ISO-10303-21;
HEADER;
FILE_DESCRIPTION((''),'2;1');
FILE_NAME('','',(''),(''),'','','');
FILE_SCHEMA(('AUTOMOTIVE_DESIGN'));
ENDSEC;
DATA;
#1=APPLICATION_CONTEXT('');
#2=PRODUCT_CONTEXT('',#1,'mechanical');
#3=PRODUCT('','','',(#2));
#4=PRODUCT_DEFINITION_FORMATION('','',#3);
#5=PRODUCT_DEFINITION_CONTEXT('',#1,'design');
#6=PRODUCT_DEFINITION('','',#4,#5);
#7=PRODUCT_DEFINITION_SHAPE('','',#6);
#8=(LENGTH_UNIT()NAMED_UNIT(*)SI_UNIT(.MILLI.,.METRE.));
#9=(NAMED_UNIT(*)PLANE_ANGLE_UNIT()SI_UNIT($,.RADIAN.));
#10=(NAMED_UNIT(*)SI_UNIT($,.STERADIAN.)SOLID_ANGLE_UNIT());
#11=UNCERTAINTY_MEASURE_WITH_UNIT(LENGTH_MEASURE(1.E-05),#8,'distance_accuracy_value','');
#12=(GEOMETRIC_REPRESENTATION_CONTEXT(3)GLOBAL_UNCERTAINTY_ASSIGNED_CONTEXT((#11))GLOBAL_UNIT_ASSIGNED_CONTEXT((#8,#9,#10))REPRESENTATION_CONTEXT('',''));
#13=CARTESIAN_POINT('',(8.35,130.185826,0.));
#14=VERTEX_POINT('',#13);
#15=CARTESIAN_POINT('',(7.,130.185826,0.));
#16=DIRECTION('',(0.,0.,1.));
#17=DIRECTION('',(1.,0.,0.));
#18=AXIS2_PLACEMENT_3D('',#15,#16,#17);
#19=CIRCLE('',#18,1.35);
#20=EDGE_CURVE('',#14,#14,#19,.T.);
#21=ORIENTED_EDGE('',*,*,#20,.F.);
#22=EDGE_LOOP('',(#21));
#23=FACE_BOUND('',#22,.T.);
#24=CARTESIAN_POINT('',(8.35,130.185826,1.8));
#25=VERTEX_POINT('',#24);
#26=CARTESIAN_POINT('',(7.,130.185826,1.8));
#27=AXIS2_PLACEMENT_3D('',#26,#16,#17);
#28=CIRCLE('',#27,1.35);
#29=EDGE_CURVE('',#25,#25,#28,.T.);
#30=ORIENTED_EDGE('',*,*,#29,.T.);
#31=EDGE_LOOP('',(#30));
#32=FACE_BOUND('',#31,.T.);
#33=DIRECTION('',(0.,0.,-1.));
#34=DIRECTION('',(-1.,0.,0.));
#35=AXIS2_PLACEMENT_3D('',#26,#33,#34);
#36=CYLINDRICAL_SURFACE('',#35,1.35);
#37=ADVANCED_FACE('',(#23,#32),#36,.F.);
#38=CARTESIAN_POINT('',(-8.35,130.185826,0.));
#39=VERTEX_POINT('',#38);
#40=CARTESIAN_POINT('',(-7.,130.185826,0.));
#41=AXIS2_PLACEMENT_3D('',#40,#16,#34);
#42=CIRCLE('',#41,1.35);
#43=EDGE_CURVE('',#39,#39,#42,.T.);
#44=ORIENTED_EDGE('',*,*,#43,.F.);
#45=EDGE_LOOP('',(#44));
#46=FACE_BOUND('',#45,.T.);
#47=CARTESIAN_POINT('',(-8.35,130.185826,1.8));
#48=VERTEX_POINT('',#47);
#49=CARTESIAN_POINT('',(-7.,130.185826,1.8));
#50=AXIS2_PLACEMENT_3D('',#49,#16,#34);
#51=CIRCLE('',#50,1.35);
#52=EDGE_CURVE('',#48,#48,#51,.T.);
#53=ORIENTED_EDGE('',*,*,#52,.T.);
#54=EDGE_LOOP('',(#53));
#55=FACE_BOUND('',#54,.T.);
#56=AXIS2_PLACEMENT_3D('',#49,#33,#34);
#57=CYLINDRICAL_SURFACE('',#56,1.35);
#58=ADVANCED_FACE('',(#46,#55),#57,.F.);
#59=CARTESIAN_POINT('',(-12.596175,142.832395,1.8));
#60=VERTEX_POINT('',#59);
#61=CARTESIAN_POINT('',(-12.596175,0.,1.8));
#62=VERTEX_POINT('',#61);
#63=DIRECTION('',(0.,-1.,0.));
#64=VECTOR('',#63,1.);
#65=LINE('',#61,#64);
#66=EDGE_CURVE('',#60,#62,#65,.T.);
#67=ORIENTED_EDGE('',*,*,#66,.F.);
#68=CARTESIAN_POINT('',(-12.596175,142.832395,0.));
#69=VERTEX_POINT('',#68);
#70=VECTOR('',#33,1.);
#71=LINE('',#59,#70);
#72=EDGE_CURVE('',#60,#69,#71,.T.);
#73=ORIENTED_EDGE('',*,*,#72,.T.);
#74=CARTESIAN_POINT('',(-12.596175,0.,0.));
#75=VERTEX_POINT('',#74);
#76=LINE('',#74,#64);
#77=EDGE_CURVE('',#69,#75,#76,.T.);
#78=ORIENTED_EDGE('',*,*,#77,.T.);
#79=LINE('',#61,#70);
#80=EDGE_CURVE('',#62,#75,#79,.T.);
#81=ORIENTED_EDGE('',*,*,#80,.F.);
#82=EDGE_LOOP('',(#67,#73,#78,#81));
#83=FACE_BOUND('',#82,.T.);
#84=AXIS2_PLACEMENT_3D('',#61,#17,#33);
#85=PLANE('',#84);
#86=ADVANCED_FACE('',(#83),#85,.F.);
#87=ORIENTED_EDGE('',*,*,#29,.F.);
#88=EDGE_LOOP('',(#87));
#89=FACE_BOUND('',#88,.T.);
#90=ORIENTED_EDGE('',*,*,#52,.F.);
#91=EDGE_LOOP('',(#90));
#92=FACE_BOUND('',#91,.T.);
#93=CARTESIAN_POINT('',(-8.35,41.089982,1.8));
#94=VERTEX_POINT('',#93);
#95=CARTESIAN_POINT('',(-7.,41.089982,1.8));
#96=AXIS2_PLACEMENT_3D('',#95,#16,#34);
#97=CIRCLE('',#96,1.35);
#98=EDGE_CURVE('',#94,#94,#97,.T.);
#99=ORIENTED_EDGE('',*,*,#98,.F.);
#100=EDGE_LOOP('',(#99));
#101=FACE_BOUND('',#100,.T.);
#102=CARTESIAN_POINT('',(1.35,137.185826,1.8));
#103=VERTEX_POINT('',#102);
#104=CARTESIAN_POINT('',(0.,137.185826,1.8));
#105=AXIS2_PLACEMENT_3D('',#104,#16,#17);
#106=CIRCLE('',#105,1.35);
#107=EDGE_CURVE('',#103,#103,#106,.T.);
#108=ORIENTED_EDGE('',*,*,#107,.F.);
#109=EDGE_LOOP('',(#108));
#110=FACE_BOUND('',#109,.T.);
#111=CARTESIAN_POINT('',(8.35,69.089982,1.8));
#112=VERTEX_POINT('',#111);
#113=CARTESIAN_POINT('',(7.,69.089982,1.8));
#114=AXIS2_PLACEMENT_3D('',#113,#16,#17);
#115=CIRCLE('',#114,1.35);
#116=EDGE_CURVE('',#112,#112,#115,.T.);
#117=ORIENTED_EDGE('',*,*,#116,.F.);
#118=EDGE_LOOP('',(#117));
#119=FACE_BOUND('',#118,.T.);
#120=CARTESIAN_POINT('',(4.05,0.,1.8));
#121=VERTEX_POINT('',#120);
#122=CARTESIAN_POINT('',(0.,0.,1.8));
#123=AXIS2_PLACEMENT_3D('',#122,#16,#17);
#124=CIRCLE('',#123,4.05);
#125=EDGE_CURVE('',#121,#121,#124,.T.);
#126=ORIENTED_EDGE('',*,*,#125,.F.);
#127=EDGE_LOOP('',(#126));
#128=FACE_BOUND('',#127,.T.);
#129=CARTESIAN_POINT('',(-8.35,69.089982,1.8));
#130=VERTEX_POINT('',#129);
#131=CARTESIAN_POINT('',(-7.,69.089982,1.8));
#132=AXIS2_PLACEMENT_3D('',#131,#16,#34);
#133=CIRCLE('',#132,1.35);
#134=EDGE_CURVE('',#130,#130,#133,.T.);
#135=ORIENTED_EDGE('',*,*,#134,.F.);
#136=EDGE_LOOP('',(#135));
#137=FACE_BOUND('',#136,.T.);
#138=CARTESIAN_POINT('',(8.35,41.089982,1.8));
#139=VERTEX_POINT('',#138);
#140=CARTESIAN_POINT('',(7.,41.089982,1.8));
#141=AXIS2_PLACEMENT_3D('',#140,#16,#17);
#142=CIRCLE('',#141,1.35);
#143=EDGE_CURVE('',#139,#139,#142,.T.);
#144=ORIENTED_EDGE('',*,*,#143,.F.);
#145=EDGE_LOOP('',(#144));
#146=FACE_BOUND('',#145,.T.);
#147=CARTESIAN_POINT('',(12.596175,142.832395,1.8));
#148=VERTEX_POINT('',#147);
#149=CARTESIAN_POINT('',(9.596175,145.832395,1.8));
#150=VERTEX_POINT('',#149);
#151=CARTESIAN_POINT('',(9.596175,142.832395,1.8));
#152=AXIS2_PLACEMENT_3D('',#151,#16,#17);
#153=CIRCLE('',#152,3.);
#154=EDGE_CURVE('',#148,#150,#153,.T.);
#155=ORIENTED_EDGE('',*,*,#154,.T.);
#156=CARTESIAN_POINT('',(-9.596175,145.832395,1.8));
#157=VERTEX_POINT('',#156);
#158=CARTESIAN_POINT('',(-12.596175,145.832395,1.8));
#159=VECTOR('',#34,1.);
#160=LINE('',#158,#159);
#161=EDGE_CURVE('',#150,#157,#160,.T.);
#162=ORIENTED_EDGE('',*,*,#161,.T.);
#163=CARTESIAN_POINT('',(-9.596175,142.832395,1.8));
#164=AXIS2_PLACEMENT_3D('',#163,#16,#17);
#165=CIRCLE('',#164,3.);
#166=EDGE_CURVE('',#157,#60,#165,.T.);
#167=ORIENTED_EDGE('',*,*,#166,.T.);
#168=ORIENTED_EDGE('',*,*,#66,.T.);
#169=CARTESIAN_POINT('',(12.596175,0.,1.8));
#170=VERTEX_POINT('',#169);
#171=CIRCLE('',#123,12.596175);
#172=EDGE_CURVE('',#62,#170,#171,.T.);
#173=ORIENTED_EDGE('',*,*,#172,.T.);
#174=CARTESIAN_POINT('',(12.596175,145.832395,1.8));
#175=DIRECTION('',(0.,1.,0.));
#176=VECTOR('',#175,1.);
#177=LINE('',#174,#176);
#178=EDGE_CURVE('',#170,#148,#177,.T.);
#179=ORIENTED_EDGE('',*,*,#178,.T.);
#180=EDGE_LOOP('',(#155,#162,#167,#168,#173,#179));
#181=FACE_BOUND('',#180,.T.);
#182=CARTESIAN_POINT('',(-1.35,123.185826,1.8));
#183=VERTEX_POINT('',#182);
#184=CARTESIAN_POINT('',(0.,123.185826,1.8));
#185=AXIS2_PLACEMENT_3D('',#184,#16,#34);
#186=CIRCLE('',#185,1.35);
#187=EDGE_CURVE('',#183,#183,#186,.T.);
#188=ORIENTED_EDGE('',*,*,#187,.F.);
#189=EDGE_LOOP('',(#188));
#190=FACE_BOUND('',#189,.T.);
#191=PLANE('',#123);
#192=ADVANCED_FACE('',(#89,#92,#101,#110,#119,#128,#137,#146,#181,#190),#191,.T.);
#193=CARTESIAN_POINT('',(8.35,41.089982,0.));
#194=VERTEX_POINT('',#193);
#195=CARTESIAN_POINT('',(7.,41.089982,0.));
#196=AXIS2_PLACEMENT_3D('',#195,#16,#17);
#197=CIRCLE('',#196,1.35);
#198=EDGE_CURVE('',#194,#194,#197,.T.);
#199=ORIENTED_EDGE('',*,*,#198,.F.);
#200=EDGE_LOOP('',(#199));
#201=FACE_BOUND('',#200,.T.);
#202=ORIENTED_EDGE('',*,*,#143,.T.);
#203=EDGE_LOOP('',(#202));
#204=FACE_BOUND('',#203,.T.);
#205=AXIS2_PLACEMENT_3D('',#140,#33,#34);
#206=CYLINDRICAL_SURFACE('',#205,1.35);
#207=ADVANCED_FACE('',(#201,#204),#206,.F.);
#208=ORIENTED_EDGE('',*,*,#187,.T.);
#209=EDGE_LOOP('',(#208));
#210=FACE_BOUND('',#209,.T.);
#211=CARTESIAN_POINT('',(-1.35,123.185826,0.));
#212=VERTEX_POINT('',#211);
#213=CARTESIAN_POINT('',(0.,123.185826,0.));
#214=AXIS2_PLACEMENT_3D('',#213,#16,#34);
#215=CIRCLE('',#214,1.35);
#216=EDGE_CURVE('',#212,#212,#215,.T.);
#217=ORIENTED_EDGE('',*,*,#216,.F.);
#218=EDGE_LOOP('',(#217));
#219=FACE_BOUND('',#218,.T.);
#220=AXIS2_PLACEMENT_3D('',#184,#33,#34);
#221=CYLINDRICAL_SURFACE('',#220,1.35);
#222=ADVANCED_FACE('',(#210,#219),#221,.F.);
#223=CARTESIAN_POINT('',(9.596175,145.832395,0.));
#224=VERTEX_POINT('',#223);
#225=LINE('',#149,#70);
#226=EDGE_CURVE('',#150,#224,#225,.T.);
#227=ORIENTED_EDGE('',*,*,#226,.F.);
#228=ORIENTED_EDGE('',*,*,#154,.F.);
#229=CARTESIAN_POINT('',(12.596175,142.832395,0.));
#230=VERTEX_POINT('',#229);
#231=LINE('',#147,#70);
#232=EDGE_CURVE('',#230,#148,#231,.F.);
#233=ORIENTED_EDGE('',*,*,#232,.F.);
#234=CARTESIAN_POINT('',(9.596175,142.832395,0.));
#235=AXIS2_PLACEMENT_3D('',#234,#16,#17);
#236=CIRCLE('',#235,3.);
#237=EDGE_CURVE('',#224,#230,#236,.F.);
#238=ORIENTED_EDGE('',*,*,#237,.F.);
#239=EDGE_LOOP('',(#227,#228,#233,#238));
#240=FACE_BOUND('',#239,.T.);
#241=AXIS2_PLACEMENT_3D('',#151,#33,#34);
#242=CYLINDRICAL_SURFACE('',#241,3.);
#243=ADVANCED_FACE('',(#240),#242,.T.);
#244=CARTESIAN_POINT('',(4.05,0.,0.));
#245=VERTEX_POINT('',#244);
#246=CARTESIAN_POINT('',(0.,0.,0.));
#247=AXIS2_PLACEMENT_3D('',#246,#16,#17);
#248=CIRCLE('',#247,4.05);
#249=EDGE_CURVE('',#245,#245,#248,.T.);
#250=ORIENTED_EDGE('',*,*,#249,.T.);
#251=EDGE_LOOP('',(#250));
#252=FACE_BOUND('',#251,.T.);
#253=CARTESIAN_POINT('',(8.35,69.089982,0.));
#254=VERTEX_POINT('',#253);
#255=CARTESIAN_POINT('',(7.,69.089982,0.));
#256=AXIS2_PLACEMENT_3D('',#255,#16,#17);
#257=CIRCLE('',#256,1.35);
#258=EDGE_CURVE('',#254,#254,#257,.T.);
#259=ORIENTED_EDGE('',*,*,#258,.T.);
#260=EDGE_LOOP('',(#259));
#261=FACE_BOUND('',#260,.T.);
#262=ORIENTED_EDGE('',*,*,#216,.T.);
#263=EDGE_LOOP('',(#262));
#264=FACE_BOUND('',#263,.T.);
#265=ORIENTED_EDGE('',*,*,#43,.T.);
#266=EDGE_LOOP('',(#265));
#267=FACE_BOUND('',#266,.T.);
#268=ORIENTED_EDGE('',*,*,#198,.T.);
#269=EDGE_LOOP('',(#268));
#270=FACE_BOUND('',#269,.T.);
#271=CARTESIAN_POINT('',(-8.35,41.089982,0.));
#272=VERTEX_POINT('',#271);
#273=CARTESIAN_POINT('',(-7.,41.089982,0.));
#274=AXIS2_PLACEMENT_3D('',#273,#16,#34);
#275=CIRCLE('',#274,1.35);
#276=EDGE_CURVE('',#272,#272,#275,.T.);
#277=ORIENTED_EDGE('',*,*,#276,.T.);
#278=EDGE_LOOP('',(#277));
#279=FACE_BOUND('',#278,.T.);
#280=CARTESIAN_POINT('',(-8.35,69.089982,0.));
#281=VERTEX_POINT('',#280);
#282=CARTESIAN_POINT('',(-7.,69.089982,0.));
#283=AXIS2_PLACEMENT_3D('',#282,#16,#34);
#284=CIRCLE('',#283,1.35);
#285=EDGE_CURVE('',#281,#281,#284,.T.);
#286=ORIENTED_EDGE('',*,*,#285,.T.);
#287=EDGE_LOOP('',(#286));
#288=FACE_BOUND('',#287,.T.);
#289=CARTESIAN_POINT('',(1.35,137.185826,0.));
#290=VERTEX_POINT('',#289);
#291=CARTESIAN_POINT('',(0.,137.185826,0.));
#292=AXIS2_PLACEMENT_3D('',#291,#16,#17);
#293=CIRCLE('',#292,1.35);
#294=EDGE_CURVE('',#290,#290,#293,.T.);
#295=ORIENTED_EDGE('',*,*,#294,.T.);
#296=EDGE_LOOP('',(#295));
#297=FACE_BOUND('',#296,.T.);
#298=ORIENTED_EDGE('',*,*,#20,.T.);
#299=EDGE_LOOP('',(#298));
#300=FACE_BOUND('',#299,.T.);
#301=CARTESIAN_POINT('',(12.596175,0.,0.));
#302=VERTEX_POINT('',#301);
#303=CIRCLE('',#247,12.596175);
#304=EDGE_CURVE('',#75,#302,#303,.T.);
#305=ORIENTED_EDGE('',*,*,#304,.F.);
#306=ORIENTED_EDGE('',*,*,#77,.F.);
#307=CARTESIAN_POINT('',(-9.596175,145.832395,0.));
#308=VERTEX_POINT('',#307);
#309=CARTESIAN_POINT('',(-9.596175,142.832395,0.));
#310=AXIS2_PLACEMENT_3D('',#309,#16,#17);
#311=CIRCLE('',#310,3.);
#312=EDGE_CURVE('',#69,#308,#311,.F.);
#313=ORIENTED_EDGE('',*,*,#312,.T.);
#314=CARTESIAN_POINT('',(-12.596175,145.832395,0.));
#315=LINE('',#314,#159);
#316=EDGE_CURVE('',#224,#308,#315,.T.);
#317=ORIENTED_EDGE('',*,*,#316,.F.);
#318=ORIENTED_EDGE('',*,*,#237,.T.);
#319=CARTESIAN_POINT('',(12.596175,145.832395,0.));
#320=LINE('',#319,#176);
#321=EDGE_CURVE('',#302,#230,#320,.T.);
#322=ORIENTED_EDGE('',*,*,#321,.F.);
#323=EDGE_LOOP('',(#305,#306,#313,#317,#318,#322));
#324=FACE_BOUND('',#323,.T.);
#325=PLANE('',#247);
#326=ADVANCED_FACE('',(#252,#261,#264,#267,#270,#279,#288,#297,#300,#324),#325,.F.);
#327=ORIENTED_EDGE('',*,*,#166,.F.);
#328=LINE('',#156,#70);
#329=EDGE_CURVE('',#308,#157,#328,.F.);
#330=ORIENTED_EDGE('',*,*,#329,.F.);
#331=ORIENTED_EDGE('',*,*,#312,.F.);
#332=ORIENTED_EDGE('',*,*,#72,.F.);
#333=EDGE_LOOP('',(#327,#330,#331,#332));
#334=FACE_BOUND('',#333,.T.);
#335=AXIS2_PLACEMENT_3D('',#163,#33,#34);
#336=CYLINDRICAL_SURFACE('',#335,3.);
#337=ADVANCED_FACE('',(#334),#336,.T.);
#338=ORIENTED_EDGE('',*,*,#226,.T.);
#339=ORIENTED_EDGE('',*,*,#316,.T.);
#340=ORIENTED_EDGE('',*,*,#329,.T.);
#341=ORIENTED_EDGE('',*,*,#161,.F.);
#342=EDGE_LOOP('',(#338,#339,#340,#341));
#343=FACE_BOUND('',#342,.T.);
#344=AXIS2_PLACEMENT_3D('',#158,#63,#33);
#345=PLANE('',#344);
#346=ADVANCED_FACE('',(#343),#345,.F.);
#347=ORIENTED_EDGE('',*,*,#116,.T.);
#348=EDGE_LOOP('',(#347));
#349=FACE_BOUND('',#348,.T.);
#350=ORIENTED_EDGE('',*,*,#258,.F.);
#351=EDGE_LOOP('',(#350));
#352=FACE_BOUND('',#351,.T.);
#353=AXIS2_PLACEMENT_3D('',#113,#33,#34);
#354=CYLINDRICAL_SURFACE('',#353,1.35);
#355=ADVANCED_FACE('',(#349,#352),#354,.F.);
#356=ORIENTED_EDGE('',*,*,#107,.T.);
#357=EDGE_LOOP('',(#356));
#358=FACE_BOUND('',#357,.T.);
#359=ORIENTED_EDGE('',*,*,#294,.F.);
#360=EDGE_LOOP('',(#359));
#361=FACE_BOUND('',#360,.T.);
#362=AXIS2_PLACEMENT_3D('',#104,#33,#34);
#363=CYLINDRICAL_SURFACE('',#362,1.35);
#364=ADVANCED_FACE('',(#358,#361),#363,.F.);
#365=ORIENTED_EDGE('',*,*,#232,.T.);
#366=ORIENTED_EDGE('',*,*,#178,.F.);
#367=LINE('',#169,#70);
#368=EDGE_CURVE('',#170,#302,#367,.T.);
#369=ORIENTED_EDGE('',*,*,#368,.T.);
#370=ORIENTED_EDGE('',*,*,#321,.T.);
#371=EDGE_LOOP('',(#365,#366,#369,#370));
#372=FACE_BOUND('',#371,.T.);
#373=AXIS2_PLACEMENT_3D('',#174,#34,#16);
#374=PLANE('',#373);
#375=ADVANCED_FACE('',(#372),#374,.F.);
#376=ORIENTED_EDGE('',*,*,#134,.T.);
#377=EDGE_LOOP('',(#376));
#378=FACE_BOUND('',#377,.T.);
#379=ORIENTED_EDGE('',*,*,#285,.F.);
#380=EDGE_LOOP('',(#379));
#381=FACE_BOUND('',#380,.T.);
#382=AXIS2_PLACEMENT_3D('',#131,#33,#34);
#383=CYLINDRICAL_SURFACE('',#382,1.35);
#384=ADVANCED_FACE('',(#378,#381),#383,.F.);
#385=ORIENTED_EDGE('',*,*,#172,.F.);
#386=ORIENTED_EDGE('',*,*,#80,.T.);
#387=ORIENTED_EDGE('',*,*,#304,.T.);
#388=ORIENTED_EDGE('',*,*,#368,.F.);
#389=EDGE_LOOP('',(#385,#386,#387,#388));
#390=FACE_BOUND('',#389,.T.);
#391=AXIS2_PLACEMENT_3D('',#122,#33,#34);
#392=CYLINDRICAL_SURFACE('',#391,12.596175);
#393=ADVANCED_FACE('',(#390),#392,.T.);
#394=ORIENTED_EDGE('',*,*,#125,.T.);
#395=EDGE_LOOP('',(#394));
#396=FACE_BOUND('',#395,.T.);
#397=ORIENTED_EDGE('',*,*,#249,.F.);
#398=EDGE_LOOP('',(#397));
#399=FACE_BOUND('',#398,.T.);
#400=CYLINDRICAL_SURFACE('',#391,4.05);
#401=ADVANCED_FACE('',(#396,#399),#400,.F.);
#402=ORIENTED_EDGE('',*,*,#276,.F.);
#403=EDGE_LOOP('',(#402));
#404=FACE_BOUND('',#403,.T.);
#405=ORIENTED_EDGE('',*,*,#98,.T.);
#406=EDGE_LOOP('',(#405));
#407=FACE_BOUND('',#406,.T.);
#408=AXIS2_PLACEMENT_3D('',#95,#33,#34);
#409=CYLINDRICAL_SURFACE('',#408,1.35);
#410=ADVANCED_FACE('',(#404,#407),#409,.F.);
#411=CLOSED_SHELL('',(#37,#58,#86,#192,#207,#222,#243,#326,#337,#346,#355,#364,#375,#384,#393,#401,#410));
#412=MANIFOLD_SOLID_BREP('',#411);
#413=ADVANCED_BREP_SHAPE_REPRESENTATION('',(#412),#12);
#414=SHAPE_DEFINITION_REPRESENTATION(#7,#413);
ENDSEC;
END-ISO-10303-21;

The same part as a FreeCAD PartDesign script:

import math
import FreeCAD as App
import Part
import Sketcher

V = App.Vector


def edges_at(feature, points):
    """Names of the edges that pass closest to the given points."""
    edges = feature.Shape.Edges
    near = lambda p: min(range(len(edges)), key=lambda i: edges[i].distToShape(Part.Vertex(*p))[0])
    return sorted({f"Edge{near(p) + 1}" for p in points})

doc = App.newDocument("Part")
body = doc.addObject("PartDesign::Body", "Body")

sketch1 = body.newObject("Sketcher::SketchObject", "Sketch")
sketch1.AttachmentSupport = (doc.getObject("XY_Plane"), [""])
sketch1.MapMode = "FlatFace"
sketch1.addGeometry(Part.LineSegment(V(-12.596175, 145.832395, 0), V(-12.596175, 0, 0)), False)
sketch1.addGeometry(Part.ArcOfCircle(Part.Circle(V(0, 0, 0), V(0, 0, 1), 12.596175), math.radians(180), math.radians(360)), False)
sketch1.addGeometry(Part.LineSegment(V(12.596175, 0, 0), V(12.596175, 145.832395, 0)), False)
sketch1.addGeometry(Part.LineSegment(V(12.596175, 145.832395, 0), V(-12.596175, 145.832395, 0)), False)
sketch1.addGeometry(Part.Circle(V(7, 41.089982, 0), V(0, 0, 1), 1.35), False)
sketch1.addGeometry(Part.Circle(V(0, 0, 0), V(0, 0, 1), 4.05), False)
sketch1.addGeometry(Part.Circle(V(-7, 41.089982, 0), V(0, 0, 1), 1.35), False)
sketch1.addGeometry(Part.Circle(V(7, 69.089982, 0), V(0, 0, 1), 1.35), False)
sketch1.addGeometry(Part.Circle(V(7, 130.185826, 0), V(0, 0, 1), 1.35), False)
sketch1.addGeometry(Part.Circle(V(-7, 69.089982, 0), V(0, 0, 1), 1.35), False)
sketch1.addGeometry(Part.Circle(V(0, 123.185826, 0), V(0, 0, 1), 1.35), False)
sketch1.addGeometry(Part.Circle(V(0, 137.185826, 0), V(0, 0, 1), 1.35), False)
sketch1.addGeometry(Part.Circle(V(-7, 130.185826, 0), V(0, 0, 1), 1.35), False)
sketch1.addConstraint(Sketcher.Constraint("Tangent", 0, 2, 1, 1))
sketch1.addConstraint(Sketcher.Constraint("Tangent", 1, 2, 2, 1))
sketch1.addConstraint(Sketcher.Constraint("Coincident", 2, 2, 3, 1))
sketch1.addConstraint(Sketcher.Constraint("Coincident", 3, 2, 0, 1))
sketch1.addConstraint(Sketcher.Constraint("Vertical", 0))
sketch1.addConstraint(Sketcher.Constraint("Vertical", 2))
sketch1.addConstraint(Sketcher.Constraint("Horizontal", 3))
sketch1.addConstraint(Sketcher.Constraint("Coincident", 1, 3, -1, 1))
sketch1.addConstraint(Sketcher.Constraint("Coincident", 5, 3, -1, 1))
sketch1.addConstraint(Sketcher.Constraint("Equal", 4, 6))
sketch1.addConstraint(Sketcher.Constraint("Equal", 6, 7))
sketch1.addConstraint(Sketcher.Constraint("Equal", 7, 8))
sketch1.addConstraint(Sketcher.Constraint("Equal", 8, 9))
sketch1.addConstraint(Sketcher.Constraint("Equal", 9, 10))
sketch1.addConstraint(Sketcher.Constraint("Equal", 10, 11))
sketch1.addConstraint(Sketcher.Constraint("Equal", 11, 12))
sketch1.addConstraint(Sketcher.Constraint("Symmetric", 4, 3, 6, 3, -2))
sketch1.addConstraint(Sketcher.Constraint("Symmetric", 7, 3, 9, 3, -2))
sketch1.addConstraint(Sketcher.Constraint("Symmetric", 8, 3, 12, 3, -2))
sketch1.addConstraint(Sketcher.Constraint("PointOnObject", 10, 3, -2))
sketch1.addConstraint(Sketcher.Constraint("PointOnObject", 11, 3, -2))
sketch1.addConstraint(Sketcher.Constraint("Vertical", 4, 3, 7, 3))
sketch1.addConstraint(Sketcher.Constraint("Vertical", 7, 3, 8, 3))
sketch1.addConstraint(Sketcher.Constraint("Diameter", 4, 2.7))
sketch1.addConstraint(Sketcher.Constraint("Diameter", 5, 8.1))
sketch1.addConstraint(Sketcher.Constraint("DistanceX", -1, 1, 4, 3, 7.0))
sketch1.addConstraint(Sketcher.Constraint("DistanceY", 4, 3, 7, 3, 28.0))
sketch1.addConstraint(Sketcher.Constraint("DistanceY", 10, 3, 8, 3, 7.0))
sketch1.addConstraint(Sketcher.Constraint("DistanceY", 8, 3, 11, 3, 7.0))
sketch1.addConstraint(Sketcher.Constraint("Radius", 1, 12.596175))
sketch1.addConstraint(Sketcher.Constraint("DistanceY", 0, 2, 0, 1, 145.832395))
sketch1.addConstraint(Sketcher.Constraint("DistanceY", -1, 1, 4, 3, 41.089982))
sketch1.addConstraint(Sketcher.Constraint("DistanceY", 11, 3, 2, 2, 8.646569))
pad1 = body.newObject("PartDesign::Pad", "Pad")
pad1.Profile = sketch1
pad1.Length = 1.8
doc.recompute()

fillet = body.newObject("PartDesign::Fillet", "Fillet")
fillet.Base = (pad1, edges_at(pad1, [(12.596, 145.832, 0.9)]))
fillet.Radius = 3
doc.recompute()

fillet2 = body.newObject("PartDesign::Fillet", "Fillet001")
fillet2.Base = (fillet, edges_at(fillet, [(-12.596, 145.832, 0.9)]))
fillet2.Radius = 3

doc.recompute()
